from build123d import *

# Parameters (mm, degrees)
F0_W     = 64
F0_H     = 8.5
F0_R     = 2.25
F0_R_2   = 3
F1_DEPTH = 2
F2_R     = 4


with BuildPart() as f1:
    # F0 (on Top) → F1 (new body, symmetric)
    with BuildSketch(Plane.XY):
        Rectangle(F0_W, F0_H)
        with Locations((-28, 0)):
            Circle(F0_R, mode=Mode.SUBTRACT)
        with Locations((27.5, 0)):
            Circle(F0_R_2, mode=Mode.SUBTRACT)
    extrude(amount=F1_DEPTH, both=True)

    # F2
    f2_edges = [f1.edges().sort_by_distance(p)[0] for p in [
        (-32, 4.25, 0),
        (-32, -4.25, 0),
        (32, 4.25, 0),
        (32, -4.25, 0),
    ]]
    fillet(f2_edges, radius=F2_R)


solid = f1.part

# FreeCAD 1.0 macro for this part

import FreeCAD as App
import Part
import Sketcher
from FreeCAD import Vector
Q = App.Units.Quantity


def edges_at(feature, points):
    """Names of the edges that pass closest to the given points."""
    edges = feature.Shape.Edges
    near = lambda p: min(range(len(edges)), key=lambda i: edges[i].distToShape(Part.Vertex(*p))[0])
    return sorted({f"Edge{near(p) + 1}" for p in points})

doc = App.newDocument("Part")
body = doc.addObject("PartDesign::Body", "Body")

sketch1 = body.newObject("Sketcher::SketchObject", "Sketch")
sketch1.AttachmentSupport = (doc.getObject("XY_Plane"), [""])
sketch1.MapMode = "FlatFace"
sketch1.addGeometry([
    Part.LineSegment(Vector(-32, 4.2, 0), Vector(-32, -4.2, 0)),
    Part.LineSegment(Vector(-32, -4.2, 0), Vector(32, -4.2, 0)),
    Part.LineSegment(Vector(32, -4.2, 0), Vector(32, 4.2, 0)),
    Part.LineSegment(Vector(32, 4.2, 0), Vector(-32, 4.2, 0)),
    Part.Circle(Vector(-28, 0, 0), Vector(0, 0, 1), 2.2),
    Part.Circle(Vector(27.5, 0, 0), Vector(0, 0, 1), 3),
], False)
sketch1.addConstraint([
    Sketcher.Constraint("Coincident", 0, 2, 1, 1),
    Sketcher.Constraint("Coincident", 1, 2, 2, 1),
    Sketcher.Constraint("Coincident", 2, 2, 3, 1),
    Sketcher.Constraint("Coincident", 3, 2, 0, 1),
    Sketcher.Constraint("Vertical", 0),
    Sketcher.Constraint("Horizontal", 1),
    Sketcher.Constraint("Vertical", 2),
    Sketcher.Constraint("Horizontal", 3),
    Sketcher.Constraint("Symmetric", 0, 2, 2, 2, -1, 1),
    Sketcher.Constraint("PointOnObject", 4, 3, -1),
    Sketcher.Constraint("PointOnObject", 5, 3, -1),
    Sketcher.Constraint("Diameter", 5, Q("6 mm")),
    Sketcher.Constraint("Diameter", 4, Q("4.5 mm")),
    Sketcher.Constraint("DistanceX", 1, 1, 1, 2, Q("64 mm")),
    Sketcher.Constraint("DistanceY", 0, 2, 0, 1, Q("8.5 mm")),
    Sketcher.Constraint("DistanceX", 4, 3, -1, 1, Q("28 mm")),
    Sketcher.Constraint("DistanceX", -1, 1, 5, 3, Q("27.5 mm")),
])
pad1 = body.newObject("PartDesign::Pad", "Pad")
pad1.Profile = sketch1
pad1.Length = 4
pad1.Midplane = True
doc.recompute()

fillet = body.newObject("PartDesign::Fillet", "Fillet")
fillet.Base = (pad1, edges_at(pad1, [
    (-32, 4.25, 0),
    (-32, -4.25, 0),
    (32, 4.25, 0),
    (32, -4.25, 0),
]))
fillet.Radius = 4

doc.recompute()
